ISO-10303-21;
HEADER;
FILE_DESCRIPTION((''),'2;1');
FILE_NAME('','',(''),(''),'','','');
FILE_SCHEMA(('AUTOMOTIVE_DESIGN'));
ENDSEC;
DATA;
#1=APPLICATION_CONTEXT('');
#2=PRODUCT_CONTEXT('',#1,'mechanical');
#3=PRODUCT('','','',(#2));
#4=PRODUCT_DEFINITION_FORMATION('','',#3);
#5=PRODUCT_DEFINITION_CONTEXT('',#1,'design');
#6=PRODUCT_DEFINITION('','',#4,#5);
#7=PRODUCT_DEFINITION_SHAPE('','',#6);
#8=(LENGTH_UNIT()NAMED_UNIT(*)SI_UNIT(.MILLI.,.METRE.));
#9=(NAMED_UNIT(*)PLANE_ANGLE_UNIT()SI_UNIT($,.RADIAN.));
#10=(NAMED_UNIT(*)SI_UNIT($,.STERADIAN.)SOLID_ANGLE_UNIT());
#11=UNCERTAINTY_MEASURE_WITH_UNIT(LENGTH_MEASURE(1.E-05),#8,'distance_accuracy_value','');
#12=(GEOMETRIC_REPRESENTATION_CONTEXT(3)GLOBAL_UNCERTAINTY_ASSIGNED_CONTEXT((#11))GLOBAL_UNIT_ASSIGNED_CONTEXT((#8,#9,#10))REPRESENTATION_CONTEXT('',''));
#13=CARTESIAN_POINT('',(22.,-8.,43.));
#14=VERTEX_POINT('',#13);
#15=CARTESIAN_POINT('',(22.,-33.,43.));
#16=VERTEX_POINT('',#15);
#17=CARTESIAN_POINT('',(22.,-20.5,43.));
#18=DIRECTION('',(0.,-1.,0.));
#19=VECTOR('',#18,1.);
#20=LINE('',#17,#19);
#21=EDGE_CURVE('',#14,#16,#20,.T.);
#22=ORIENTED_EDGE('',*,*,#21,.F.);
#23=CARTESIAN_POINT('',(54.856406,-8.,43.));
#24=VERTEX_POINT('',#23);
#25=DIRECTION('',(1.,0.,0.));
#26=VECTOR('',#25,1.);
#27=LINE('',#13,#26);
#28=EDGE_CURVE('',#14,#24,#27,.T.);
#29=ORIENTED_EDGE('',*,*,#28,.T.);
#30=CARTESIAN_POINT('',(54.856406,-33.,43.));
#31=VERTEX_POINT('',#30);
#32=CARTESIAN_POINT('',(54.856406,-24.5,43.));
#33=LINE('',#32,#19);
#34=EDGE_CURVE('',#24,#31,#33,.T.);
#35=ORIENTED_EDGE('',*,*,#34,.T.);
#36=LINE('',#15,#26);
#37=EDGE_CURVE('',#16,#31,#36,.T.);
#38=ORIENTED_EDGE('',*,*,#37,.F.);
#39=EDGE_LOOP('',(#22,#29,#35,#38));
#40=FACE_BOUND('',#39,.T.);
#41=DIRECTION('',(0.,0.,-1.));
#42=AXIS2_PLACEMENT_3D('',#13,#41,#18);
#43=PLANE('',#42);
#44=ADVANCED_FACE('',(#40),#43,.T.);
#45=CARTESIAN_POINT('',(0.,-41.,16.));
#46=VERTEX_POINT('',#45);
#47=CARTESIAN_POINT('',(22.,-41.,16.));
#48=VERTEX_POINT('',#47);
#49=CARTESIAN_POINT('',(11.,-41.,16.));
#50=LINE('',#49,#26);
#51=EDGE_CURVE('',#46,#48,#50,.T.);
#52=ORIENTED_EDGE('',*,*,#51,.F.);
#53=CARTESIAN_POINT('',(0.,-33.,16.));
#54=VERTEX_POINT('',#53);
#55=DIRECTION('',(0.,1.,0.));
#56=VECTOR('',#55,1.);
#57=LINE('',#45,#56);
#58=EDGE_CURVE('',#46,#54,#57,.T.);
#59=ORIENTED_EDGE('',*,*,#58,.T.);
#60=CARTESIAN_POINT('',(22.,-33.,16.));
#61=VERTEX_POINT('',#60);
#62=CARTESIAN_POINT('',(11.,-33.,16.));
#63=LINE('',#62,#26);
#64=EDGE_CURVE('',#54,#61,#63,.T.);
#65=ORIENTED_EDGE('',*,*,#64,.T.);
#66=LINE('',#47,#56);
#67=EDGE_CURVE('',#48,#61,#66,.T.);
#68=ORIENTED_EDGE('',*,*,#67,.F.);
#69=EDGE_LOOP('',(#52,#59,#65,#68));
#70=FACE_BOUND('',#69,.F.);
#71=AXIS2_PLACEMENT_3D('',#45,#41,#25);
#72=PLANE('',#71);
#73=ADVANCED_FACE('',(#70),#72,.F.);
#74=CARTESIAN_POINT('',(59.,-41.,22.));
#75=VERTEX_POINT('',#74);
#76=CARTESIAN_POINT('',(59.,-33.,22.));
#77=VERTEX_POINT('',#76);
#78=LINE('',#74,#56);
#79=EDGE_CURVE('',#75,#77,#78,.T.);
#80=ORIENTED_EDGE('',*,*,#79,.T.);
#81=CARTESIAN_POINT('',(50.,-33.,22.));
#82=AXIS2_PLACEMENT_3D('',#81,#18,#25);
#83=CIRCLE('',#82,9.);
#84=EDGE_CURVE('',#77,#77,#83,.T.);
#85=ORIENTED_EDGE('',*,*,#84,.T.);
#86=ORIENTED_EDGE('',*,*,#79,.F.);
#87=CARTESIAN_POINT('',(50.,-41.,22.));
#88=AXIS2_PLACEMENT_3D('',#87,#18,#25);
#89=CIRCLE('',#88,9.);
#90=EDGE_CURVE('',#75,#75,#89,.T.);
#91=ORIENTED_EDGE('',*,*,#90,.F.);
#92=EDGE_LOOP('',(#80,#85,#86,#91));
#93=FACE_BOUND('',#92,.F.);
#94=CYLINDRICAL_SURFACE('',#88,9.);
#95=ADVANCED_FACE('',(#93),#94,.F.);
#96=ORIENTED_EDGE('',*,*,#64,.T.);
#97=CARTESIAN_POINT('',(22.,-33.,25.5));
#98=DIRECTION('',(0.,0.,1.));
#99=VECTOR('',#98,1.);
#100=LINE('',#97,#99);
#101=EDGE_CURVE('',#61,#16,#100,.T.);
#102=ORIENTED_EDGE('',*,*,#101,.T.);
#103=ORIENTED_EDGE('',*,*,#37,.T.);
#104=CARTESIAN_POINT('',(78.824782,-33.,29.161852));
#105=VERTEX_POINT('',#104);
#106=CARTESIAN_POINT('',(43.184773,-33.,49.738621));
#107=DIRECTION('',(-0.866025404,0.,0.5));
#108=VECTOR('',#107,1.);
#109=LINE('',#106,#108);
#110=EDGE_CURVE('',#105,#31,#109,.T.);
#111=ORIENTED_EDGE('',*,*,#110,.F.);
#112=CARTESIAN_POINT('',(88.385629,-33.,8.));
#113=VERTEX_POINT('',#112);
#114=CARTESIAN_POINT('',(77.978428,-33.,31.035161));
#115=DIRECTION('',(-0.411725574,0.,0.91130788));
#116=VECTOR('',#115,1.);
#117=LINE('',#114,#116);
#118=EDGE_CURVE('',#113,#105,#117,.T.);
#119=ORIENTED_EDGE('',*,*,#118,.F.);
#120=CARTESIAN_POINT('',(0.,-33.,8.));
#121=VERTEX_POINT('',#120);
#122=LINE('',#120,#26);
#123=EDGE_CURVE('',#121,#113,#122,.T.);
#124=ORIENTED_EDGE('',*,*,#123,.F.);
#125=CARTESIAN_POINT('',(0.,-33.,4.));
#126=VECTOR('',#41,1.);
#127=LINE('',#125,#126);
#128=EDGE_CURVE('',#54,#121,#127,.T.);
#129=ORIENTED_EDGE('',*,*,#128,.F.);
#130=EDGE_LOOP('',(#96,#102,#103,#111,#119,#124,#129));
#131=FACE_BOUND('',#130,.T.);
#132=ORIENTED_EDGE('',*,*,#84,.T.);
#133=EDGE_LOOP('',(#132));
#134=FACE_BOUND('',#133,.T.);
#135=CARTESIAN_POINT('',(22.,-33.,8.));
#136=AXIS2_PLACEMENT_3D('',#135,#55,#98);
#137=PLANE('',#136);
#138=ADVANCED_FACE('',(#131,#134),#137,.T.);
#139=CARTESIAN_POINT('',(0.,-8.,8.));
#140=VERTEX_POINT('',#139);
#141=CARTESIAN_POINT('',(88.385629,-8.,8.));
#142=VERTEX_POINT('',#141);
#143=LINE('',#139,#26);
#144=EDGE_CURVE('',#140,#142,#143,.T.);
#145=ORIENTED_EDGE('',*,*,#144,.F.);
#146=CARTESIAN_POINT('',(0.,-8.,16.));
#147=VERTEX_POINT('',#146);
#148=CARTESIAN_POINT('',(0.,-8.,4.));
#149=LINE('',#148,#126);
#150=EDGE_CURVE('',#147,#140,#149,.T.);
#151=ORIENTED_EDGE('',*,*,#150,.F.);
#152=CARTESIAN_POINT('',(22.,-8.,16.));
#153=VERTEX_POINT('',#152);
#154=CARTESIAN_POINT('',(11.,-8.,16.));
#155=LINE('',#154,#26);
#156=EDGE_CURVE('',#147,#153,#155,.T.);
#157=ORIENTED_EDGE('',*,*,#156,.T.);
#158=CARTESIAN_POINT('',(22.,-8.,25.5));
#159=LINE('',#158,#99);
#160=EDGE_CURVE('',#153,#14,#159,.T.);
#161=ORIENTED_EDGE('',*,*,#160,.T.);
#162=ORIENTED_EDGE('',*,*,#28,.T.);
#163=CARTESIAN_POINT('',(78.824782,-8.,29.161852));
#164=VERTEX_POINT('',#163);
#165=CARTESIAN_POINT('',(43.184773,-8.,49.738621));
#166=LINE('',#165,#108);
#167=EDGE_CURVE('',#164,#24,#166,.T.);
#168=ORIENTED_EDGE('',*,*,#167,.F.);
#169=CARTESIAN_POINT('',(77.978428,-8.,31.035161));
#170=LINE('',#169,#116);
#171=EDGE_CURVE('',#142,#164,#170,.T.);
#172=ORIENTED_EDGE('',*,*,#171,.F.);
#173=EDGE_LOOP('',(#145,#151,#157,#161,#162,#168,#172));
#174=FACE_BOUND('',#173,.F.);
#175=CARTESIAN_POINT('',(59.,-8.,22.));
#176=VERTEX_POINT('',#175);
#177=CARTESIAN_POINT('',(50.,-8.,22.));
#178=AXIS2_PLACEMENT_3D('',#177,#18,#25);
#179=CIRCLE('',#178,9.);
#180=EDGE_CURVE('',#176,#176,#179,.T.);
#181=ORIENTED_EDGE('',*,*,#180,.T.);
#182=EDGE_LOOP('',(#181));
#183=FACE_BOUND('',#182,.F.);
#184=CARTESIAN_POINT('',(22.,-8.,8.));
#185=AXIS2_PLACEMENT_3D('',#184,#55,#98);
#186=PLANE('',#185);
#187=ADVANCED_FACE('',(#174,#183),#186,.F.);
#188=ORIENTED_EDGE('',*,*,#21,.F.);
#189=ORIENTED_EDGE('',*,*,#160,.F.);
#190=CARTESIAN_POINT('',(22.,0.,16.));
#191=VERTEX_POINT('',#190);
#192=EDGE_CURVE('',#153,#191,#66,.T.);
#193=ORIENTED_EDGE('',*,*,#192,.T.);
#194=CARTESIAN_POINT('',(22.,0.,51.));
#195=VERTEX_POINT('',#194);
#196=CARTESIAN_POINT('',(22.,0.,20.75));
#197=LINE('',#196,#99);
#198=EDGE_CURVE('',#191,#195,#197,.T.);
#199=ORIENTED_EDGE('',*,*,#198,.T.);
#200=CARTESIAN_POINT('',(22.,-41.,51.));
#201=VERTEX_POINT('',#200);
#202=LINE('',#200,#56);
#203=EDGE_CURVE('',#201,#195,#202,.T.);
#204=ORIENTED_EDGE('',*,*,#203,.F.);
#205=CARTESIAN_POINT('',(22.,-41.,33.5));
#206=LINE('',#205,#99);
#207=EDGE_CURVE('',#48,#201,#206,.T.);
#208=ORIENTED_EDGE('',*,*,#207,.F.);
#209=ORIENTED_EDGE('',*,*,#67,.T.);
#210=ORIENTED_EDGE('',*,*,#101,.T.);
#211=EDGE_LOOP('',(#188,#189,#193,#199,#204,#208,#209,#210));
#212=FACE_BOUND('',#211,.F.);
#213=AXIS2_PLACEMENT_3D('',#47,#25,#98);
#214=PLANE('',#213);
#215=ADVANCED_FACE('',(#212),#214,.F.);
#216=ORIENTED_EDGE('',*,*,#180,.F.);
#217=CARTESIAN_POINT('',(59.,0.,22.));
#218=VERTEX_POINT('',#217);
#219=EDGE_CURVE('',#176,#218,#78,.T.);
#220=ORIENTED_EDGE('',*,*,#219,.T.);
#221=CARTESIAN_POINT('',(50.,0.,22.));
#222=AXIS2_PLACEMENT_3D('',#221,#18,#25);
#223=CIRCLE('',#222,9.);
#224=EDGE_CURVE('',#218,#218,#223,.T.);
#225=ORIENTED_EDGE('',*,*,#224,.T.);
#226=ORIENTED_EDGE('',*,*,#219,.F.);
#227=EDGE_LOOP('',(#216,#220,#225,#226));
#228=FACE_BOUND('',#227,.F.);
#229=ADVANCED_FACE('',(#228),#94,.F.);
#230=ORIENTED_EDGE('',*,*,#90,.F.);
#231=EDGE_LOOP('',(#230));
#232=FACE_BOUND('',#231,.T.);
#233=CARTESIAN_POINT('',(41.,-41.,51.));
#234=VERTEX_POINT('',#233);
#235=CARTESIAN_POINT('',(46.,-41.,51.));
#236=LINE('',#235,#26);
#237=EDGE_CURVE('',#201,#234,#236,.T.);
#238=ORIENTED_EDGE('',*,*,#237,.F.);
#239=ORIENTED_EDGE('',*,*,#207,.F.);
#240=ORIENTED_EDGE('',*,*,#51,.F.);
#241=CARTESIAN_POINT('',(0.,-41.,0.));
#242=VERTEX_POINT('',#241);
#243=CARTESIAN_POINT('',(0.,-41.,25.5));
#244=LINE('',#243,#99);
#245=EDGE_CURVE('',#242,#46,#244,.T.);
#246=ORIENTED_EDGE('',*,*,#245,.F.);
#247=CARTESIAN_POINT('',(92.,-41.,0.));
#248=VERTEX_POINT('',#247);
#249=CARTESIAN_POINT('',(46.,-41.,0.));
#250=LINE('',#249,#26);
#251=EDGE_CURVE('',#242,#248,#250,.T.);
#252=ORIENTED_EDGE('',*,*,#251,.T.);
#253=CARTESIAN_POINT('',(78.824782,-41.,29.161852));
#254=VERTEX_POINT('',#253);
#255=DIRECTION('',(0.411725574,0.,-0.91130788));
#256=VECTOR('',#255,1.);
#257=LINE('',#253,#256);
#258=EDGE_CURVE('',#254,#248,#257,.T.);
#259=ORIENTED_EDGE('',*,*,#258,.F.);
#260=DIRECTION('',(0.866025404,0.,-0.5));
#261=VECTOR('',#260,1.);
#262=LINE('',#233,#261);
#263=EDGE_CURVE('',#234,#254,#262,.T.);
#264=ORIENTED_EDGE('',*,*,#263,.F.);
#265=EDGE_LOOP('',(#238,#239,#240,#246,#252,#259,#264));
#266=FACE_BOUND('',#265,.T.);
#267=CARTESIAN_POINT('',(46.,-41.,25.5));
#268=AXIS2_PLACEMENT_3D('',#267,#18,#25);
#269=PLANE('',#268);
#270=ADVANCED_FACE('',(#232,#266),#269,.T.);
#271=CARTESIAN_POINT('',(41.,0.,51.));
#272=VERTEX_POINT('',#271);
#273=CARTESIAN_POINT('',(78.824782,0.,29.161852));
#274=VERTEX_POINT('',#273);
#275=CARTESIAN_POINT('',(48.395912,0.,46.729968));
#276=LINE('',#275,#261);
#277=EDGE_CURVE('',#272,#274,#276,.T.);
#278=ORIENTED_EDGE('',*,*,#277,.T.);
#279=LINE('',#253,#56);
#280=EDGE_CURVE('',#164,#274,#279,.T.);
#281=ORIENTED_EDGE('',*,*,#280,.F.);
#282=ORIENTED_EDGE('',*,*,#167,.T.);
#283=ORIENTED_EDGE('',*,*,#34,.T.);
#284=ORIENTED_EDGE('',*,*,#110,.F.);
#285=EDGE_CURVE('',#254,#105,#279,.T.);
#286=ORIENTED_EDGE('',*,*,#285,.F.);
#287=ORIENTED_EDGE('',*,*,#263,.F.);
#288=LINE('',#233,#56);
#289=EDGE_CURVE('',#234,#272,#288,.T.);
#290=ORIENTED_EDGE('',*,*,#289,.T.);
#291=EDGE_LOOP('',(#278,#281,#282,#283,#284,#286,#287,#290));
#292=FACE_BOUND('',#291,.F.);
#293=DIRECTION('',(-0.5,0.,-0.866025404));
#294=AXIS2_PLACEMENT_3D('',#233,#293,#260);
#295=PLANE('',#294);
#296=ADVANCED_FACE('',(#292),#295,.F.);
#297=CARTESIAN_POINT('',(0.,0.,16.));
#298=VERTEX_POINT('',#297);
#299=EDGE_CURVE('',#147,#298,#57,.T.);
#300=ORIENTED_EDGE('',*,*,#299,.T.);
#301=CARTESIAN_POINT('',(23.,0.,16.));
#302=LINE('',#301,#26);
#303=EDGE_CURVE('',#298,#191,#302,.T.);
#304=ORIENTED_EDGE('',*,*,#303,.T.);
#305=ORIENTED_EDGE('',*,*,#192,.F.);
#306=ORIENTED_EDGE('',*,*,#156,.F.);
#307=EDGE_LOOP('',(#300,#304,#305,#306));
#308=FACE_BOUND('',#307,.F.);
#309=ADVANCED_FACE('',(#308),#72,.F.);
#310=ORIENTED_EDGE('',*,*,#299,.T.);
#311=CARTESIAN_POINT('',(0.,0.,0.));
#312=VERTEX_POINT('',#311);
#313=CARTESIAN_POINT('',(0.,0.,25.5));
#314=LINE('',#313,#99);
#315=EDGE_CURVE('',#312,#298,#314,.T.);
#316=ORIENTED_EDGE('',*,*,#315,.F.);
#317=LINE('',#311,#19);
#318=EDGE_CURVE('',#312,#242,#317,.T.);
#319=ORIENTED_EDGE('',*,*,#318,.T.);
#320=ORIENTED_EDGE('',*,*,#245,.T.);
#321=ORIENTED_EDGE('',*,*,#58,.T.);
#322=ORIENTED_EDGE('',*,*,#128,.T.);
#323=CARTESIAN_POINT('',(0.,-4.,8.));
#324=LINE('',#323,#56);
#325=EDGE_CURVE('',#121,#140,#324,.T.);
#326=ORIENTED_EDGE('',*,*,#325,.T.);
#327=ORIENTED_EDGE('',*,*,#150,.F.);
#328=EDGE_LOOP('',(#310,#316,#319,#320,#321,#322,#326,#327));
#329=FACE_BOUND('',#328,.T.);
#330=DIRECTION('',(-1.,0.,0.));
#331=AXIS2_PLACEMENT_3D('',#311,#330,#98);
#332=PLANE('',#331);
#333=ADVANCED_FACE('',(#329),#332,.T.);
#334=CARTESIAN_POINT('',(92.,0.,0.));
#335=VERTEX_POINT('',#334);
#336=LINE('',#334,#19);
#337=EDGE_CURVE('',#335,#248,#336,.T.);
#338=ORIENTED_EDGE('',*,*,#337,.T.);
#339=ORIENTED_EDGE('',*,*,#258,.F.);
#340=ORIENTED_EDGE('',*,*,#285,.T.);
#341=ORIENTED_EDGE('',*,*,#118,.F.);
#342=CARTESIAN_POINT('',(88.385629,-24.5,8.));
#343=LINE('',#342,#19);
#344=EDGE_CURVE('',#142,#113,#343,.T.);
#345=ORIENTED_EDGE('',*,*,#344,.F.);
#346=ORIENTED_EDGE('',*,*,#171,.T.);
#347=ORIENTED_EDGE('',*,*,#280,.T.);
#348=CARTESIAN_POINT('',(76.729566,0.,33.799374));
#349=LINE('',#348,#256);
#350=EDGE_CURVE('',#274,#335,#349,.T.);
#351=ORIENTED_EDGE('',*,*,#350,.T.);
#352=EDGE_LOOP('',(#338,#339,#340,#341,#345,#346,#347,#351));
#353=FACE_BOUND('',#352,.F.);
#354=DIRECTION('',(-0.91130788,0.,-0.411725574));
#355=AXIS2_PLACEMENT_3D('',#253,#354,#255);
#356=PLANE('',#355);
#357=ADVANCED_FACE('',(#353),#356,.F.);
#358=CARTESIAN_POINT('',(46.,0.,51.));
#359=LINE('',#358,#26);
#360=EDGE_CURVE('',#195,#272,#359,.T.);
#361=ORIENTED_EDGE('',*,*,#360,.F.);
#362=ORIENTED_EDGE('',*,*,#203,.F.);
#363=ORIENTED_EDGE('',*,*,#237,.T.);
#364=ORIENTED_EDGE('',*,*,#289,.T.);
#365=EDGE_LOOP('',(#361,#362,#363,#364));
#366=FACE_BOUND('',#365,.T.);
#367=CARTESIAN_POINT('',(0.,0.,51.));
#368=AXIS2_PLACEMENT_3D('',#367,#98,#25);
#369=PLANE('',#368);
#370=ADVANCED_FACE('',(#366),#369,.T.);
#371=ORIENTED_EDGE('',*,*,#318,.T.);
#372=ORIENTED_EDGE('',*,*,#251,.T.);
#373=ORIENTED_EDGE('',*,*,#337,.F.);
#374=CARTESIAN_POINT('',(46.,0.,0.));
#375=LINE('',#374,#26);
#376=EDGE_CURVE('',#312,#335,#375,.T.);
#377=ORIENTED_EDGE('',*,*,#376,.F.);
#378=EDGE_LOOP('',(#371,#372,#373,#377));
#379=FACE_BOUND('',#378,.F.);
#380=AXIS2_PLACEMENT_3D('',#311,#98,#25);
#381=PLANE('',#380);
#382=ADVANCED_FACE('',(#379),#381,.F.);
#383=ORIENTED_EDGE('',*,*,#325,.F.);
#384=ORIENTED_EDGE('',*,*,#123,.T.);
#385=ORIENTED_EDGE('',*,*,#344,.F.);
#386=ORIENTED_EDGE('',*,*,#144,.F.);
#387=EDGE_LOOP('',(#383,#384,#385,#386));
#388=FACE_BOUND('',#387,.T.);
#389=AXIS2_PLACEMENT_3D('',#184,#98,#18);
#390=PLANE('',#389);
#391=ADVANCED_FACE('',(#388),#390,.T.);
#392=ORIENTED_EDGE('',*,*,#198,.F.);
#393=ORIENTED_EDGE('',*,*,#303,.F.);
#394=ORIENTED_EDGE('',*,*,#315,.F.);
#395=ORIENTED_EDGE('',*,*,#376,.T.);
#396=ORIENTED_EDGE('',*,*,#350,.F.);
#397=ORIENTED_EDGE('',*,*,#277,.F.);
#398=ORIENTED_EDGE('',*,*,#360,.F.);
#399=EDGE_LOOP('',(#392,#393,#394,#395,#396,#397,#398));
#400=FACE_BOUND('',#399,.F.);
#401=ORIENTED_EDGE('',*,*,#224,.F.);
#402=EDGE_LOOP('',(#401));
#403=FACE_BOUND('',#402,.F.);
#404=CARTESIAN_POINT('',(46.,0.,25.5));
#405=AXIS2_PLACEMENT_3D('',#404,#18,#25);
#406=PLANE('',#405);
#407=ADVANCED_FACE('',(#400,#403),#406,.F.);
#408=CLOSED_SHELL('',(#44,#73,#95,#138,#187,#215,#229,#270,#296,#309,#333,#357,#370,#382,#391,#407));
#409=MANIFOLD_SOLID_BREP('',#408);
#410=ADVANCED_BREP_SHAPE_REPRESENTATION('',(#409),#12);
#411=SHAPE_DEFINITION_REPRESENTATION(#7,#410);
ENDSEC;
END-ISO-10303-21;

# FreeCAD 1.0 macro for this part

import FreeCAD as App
import Part
import Sketcher

V = App.Vector
Q = App.Units.Quantity

doc = App.newDocument("Part")
body = doc.addObject("PartDesign::Body", "Body")

# Sketch on XZ plane
sketch1 = body.newObject("Sketcher::SketchObject", "Sketch")
sketch1.AttachmentSupport = (doc.getObject("XZ_Plane"), [""])
sketch1.MapMode = "FlatFace"
sketch1.addGeometry(Part.LineSegment(V(0, 51, 0), V(0, 0, 0)), False)
sketch1.addGeometry(Part.LineSegment(V(0, 0, 0), V(92, 0, 0)), False)
sketch1.addGeometry(Part.LineSegment(V(92, 0, 0), V(92, 51, 0)), False)
sketch1.addGeometry(Part.LineSegment(V(92, 51, 0), V(0, 51, 0)), False)
sketch1.addConstraint(Sketcher.Constraint("Coincident", 0, 2, 1, 1))
sketch1.addConstraint(Sketcher.Constraint("Coincident", 1, 2, 2, 1))
sketch1.addConstraint(Sketcher.Constraint("Coincident", 2, 2, 3, 1))
sketch1.addConstraint(Sketcher.Constraint("Coincident", 3, 2, 0, 1))
sketch1.addConstraint(Sketcher.Constraint("Vertical", 0))
sketch1.addConstraint(Sketcher.Constraint("Horizontal", 1))
sketch1.addConstraint(Sketcher.Constraint("Vertical", 2))
sketch1.addConstraint(Sketcher.Constraint("Horizontal", 3))
sketch1.addConstraint(Sketcher.Constraint("Coincident", 0, 2, -1, 1))
sketch1.addConstraint(Sketcher.Constraint("DistanceX", 1, 1, 1, 2, 92.0))
sketch1.addConstraint(Sketcher.Constraint("DistanceY", 0, 2, 0, 1, 51.0))
pad1 = body.newObject("PartDesign::Pad", "Pad")
pad1.Profile = sketch1
pad1.Length = 41

# Sketch on XZ plane
sketch2 = body.newObject("Sketcher::SketchObject", "Sketch001")
sketch2.AttachmentSupport = (doc.getObject("XZ_Plane"), [""])
sketch2.MapMode = "FlatFace"
sketch2.AttachmentOffset = App.Placement(V(0, 0, 41), App.Rotation())
sketch2.addGeometry(Part.LineSegment(V(0, 51, 0), V(0, 16, 0)), False)
sketch2.addGeometry(Part.LineSegment(V(0, 16, 0), V(22, 16, 0)), False)
sketch2.addGeometry(Part.LineSegment(V(22, 16, 0), V(22, 51, 0)), False)
sketch2.addGeometry(Part.LineSegment(V(22, 51, 0), V(0, 51, 0)), False)
sketch2.addConstraint(Sketcher.Constraint("Coincident", 0, 2, 1, 1))
sketch2.addConstraint(Sketcher.Constraint("Coincident", 1, 2, 2, 1))
sketch2.addConstraint(Sketcher.Constraint("Coincident", 2, 2, 3, 1))
sketch2.addConstraint(Sketcher.Constraint("Coincident", 3, 2, 0, 1))
sketch2.addConstraint(Sketcher.Constraint("Vertical", 0))
sketch2.addConstraint(Sketcher.Constraint("Horizontal", 1))
sketch2.addConstraint(Sketcher.Constraint("Vertical", 2))
sketch2.addConstraint(Sketcher.Constraint("Horizontal", 3))
sketch2.addConstraint(Sketcher.Constraint("PointOnObject", 0, 2, -2))
sketch2.addConstraint(Sketcher.Constraint("DistanceX", 1, 1, 1, 2, 22.0))
sketch2.addConstraint(Sketcher.Constraint("DistanceY", 0, 2, 0, 1, 35.0))
sketch2.addConstraint(Sketcher.Constraint("DistanceY", -1, 1, 0, 2, 16.0))
pocket1 = body.newObject("PartDesign::Pocket", "Pocket")
pocket1.Profile = sketch2
pocket1.Type = "ThroughAll"

# Sketch on XZ plane
sketch3 = body.newObject("Sketcher::SketchObject", "Sketch002")
sketch3.AttachmentSupport = (doc.getObject("XZ_Plane"), [""])
sketch3.MapMode = "FlatFace"
sketch3.AttachmentOffset = App.Placement(V(0, 0, 41), App.Rotation())
sketch3.addGeometry(Part.LineSegment(V(92, 51, 0), V(41, 51, 0)), False)
sketch3.addGeometry(Part.LineSegment(V(41, 51, 0), V(79, 29, 0)), False)
sketch3.addGeometry(Part.LineSegment(V(79, 29, 0), V(92, 0, 0)), False)
sketch3.addGeometry(Part.LineSegment(V(92, 0, 0), V(92, 51, 0)), False)
sketch3.addConstraint(Sketcher.Constraint("Coincident", 0, 2, 1, 1))
sketch3.addConstraint(Sketcher.Constraint("Coincident", 1, 2, 2, 1))
sketch3.addConstraint(Sketcher.Constraint("Coincident", 2, 2, 3, 1))
sketch3.addConstraint(Sketcher.Constraint("Coincident", 3, 2, 0, 1))
sketch3.addConstraint(Sketcher.Constraint("Horizontal", 0))
sketch3.addConstraint(Sketcher.Constraint("Vertical", 3))
sketch3.addConstraint(Sketcher.Constraint("PointOnObject", 2, 2, -1))
sketch3.addConstraint(Sketcher.Constraint("Equal", 0, 3))
sketch3.addConstraint(Sketcher.Constraint("DistanceX", 0, 2, 0, 1, 51.0))
sketch3.addConstraint(Sketcher.Constraint("Angle", 1, Q("-30 deg")))
sketch3.addConstraint(Sketcher.Constraint("Distance", 2, 32.0))
sketch3.addConstraint(Sketcher.Constraint("DistanceX", -1, 1, 0, 2, 41.0))
pocket2 = body.newObject("PartDesign::Pocket", "Pocket001")
pocket2.Profile = sketch3
pocket2.Type = "ThroughAll"

# Sketch on XZ plane
sketch4 = body.newObject("Sketcher::SketchObject", "Sketch003")
sketch4.AttachmentSupport = (doc.getObject("XZ_Plane"), [""])
sketch4.MapMode = "FlatFace"
sketch4.AttachmentOffset = App.Placement(V(0, 0, 41), App.Rotation())
sketch4.addGeometry(Part.Circle(V(50, 22, 0), V(0, 0, 1), 9), False)
sketch4.addConstraint(Sketcher.Constraint("Diameter", 0, 18.0))
sketch4.addConstraint(Sketcher.Constraint("DistanceX", -1, 1, 0, 3, 50.0))
sketch4.addConstraint(Sketcher.Constraint("DistanceY", -1, 1, 0, 3, 22.0))
pocket3 = body.newObject("PartDesign::Pocket", "Pocket002")
pocket3.Profile = sketch4
pocket3.Type = "ThroughAll"

# Sketch on YZ plane
sketch5 = body.newObject("Sketcher::SketchObject", "Sketch004")
sketch5.AttachmentSupport = (doc.getObject("YZ_Plane"), [""])
sketch5.MapMode = "FlatFace"
sketch5.AttachmentOffset = App.Placement(V(0, 0, 22), App.Rotation())
sketch5.addGeometry(Part.LineSegment(V(-8, 43, 0), V(-8, 8, 0)), False)
sketch5.addGeometry(Part.LineSegment(V(-8, 8, 0), V(-33, 8, 0)), False)
sketch5.addGeometry(Part.LineSegment(V(-33, 8, 0), V(-33, 43, 0)), False)
sketch5.addGeometry(Part.LineSegment(V(-33, 43, 0), V(-8, 43, 0)), False)
sketch5.addConstraint(Sketcher.Constraint("Coincident", 0, 2, 1, 1))
sketch5.addConstraint(Sketcher.Constraint("Coincident", 1, 2, 2, 1))
sketch5.addConstraint(Sketcher.Constraint("Coincident", 2, 2, 3, 1))
sketch5.addConstraint(Sketcher.Constraint("Coincident", 3, 2, 0, 1))
sketch5.addConstraint(Sketcher.Constraint("Vertical", 0))
sketch5.addConstraint(Sketcher.Constraint("Horizontal", 1))
sketch5.addConstraint(Sketcher.Constraint("Vertical", 2))
sketch5.addConstraint(Sketcher.Constraint("Horizontal", 3))
sketch5.addConstraint(Sketcher.Constraint("DistanceX", 1, 2, 1, 1, 25.0))
sketch5.addConstraint(Sketcher.Constraint("DistanceY", 0, 2, 0, 1, 35.0))
sketch5.addConstraint(Sketcher.Constraint("DistanceX", 0, 2, -1, 1, 8.0))
sketch5.addConstraint(Sketcher.Constraint("DistanceY", -1, 1, 0, 2, 8.0))
pocket4 = body.newObject("PartDesign::Pocket", "Pocket003")
pocket4.Profile = sketch5
pocket4.Type = "ThroughAll"
pocket4.Midplane = True

doc.recompute()
